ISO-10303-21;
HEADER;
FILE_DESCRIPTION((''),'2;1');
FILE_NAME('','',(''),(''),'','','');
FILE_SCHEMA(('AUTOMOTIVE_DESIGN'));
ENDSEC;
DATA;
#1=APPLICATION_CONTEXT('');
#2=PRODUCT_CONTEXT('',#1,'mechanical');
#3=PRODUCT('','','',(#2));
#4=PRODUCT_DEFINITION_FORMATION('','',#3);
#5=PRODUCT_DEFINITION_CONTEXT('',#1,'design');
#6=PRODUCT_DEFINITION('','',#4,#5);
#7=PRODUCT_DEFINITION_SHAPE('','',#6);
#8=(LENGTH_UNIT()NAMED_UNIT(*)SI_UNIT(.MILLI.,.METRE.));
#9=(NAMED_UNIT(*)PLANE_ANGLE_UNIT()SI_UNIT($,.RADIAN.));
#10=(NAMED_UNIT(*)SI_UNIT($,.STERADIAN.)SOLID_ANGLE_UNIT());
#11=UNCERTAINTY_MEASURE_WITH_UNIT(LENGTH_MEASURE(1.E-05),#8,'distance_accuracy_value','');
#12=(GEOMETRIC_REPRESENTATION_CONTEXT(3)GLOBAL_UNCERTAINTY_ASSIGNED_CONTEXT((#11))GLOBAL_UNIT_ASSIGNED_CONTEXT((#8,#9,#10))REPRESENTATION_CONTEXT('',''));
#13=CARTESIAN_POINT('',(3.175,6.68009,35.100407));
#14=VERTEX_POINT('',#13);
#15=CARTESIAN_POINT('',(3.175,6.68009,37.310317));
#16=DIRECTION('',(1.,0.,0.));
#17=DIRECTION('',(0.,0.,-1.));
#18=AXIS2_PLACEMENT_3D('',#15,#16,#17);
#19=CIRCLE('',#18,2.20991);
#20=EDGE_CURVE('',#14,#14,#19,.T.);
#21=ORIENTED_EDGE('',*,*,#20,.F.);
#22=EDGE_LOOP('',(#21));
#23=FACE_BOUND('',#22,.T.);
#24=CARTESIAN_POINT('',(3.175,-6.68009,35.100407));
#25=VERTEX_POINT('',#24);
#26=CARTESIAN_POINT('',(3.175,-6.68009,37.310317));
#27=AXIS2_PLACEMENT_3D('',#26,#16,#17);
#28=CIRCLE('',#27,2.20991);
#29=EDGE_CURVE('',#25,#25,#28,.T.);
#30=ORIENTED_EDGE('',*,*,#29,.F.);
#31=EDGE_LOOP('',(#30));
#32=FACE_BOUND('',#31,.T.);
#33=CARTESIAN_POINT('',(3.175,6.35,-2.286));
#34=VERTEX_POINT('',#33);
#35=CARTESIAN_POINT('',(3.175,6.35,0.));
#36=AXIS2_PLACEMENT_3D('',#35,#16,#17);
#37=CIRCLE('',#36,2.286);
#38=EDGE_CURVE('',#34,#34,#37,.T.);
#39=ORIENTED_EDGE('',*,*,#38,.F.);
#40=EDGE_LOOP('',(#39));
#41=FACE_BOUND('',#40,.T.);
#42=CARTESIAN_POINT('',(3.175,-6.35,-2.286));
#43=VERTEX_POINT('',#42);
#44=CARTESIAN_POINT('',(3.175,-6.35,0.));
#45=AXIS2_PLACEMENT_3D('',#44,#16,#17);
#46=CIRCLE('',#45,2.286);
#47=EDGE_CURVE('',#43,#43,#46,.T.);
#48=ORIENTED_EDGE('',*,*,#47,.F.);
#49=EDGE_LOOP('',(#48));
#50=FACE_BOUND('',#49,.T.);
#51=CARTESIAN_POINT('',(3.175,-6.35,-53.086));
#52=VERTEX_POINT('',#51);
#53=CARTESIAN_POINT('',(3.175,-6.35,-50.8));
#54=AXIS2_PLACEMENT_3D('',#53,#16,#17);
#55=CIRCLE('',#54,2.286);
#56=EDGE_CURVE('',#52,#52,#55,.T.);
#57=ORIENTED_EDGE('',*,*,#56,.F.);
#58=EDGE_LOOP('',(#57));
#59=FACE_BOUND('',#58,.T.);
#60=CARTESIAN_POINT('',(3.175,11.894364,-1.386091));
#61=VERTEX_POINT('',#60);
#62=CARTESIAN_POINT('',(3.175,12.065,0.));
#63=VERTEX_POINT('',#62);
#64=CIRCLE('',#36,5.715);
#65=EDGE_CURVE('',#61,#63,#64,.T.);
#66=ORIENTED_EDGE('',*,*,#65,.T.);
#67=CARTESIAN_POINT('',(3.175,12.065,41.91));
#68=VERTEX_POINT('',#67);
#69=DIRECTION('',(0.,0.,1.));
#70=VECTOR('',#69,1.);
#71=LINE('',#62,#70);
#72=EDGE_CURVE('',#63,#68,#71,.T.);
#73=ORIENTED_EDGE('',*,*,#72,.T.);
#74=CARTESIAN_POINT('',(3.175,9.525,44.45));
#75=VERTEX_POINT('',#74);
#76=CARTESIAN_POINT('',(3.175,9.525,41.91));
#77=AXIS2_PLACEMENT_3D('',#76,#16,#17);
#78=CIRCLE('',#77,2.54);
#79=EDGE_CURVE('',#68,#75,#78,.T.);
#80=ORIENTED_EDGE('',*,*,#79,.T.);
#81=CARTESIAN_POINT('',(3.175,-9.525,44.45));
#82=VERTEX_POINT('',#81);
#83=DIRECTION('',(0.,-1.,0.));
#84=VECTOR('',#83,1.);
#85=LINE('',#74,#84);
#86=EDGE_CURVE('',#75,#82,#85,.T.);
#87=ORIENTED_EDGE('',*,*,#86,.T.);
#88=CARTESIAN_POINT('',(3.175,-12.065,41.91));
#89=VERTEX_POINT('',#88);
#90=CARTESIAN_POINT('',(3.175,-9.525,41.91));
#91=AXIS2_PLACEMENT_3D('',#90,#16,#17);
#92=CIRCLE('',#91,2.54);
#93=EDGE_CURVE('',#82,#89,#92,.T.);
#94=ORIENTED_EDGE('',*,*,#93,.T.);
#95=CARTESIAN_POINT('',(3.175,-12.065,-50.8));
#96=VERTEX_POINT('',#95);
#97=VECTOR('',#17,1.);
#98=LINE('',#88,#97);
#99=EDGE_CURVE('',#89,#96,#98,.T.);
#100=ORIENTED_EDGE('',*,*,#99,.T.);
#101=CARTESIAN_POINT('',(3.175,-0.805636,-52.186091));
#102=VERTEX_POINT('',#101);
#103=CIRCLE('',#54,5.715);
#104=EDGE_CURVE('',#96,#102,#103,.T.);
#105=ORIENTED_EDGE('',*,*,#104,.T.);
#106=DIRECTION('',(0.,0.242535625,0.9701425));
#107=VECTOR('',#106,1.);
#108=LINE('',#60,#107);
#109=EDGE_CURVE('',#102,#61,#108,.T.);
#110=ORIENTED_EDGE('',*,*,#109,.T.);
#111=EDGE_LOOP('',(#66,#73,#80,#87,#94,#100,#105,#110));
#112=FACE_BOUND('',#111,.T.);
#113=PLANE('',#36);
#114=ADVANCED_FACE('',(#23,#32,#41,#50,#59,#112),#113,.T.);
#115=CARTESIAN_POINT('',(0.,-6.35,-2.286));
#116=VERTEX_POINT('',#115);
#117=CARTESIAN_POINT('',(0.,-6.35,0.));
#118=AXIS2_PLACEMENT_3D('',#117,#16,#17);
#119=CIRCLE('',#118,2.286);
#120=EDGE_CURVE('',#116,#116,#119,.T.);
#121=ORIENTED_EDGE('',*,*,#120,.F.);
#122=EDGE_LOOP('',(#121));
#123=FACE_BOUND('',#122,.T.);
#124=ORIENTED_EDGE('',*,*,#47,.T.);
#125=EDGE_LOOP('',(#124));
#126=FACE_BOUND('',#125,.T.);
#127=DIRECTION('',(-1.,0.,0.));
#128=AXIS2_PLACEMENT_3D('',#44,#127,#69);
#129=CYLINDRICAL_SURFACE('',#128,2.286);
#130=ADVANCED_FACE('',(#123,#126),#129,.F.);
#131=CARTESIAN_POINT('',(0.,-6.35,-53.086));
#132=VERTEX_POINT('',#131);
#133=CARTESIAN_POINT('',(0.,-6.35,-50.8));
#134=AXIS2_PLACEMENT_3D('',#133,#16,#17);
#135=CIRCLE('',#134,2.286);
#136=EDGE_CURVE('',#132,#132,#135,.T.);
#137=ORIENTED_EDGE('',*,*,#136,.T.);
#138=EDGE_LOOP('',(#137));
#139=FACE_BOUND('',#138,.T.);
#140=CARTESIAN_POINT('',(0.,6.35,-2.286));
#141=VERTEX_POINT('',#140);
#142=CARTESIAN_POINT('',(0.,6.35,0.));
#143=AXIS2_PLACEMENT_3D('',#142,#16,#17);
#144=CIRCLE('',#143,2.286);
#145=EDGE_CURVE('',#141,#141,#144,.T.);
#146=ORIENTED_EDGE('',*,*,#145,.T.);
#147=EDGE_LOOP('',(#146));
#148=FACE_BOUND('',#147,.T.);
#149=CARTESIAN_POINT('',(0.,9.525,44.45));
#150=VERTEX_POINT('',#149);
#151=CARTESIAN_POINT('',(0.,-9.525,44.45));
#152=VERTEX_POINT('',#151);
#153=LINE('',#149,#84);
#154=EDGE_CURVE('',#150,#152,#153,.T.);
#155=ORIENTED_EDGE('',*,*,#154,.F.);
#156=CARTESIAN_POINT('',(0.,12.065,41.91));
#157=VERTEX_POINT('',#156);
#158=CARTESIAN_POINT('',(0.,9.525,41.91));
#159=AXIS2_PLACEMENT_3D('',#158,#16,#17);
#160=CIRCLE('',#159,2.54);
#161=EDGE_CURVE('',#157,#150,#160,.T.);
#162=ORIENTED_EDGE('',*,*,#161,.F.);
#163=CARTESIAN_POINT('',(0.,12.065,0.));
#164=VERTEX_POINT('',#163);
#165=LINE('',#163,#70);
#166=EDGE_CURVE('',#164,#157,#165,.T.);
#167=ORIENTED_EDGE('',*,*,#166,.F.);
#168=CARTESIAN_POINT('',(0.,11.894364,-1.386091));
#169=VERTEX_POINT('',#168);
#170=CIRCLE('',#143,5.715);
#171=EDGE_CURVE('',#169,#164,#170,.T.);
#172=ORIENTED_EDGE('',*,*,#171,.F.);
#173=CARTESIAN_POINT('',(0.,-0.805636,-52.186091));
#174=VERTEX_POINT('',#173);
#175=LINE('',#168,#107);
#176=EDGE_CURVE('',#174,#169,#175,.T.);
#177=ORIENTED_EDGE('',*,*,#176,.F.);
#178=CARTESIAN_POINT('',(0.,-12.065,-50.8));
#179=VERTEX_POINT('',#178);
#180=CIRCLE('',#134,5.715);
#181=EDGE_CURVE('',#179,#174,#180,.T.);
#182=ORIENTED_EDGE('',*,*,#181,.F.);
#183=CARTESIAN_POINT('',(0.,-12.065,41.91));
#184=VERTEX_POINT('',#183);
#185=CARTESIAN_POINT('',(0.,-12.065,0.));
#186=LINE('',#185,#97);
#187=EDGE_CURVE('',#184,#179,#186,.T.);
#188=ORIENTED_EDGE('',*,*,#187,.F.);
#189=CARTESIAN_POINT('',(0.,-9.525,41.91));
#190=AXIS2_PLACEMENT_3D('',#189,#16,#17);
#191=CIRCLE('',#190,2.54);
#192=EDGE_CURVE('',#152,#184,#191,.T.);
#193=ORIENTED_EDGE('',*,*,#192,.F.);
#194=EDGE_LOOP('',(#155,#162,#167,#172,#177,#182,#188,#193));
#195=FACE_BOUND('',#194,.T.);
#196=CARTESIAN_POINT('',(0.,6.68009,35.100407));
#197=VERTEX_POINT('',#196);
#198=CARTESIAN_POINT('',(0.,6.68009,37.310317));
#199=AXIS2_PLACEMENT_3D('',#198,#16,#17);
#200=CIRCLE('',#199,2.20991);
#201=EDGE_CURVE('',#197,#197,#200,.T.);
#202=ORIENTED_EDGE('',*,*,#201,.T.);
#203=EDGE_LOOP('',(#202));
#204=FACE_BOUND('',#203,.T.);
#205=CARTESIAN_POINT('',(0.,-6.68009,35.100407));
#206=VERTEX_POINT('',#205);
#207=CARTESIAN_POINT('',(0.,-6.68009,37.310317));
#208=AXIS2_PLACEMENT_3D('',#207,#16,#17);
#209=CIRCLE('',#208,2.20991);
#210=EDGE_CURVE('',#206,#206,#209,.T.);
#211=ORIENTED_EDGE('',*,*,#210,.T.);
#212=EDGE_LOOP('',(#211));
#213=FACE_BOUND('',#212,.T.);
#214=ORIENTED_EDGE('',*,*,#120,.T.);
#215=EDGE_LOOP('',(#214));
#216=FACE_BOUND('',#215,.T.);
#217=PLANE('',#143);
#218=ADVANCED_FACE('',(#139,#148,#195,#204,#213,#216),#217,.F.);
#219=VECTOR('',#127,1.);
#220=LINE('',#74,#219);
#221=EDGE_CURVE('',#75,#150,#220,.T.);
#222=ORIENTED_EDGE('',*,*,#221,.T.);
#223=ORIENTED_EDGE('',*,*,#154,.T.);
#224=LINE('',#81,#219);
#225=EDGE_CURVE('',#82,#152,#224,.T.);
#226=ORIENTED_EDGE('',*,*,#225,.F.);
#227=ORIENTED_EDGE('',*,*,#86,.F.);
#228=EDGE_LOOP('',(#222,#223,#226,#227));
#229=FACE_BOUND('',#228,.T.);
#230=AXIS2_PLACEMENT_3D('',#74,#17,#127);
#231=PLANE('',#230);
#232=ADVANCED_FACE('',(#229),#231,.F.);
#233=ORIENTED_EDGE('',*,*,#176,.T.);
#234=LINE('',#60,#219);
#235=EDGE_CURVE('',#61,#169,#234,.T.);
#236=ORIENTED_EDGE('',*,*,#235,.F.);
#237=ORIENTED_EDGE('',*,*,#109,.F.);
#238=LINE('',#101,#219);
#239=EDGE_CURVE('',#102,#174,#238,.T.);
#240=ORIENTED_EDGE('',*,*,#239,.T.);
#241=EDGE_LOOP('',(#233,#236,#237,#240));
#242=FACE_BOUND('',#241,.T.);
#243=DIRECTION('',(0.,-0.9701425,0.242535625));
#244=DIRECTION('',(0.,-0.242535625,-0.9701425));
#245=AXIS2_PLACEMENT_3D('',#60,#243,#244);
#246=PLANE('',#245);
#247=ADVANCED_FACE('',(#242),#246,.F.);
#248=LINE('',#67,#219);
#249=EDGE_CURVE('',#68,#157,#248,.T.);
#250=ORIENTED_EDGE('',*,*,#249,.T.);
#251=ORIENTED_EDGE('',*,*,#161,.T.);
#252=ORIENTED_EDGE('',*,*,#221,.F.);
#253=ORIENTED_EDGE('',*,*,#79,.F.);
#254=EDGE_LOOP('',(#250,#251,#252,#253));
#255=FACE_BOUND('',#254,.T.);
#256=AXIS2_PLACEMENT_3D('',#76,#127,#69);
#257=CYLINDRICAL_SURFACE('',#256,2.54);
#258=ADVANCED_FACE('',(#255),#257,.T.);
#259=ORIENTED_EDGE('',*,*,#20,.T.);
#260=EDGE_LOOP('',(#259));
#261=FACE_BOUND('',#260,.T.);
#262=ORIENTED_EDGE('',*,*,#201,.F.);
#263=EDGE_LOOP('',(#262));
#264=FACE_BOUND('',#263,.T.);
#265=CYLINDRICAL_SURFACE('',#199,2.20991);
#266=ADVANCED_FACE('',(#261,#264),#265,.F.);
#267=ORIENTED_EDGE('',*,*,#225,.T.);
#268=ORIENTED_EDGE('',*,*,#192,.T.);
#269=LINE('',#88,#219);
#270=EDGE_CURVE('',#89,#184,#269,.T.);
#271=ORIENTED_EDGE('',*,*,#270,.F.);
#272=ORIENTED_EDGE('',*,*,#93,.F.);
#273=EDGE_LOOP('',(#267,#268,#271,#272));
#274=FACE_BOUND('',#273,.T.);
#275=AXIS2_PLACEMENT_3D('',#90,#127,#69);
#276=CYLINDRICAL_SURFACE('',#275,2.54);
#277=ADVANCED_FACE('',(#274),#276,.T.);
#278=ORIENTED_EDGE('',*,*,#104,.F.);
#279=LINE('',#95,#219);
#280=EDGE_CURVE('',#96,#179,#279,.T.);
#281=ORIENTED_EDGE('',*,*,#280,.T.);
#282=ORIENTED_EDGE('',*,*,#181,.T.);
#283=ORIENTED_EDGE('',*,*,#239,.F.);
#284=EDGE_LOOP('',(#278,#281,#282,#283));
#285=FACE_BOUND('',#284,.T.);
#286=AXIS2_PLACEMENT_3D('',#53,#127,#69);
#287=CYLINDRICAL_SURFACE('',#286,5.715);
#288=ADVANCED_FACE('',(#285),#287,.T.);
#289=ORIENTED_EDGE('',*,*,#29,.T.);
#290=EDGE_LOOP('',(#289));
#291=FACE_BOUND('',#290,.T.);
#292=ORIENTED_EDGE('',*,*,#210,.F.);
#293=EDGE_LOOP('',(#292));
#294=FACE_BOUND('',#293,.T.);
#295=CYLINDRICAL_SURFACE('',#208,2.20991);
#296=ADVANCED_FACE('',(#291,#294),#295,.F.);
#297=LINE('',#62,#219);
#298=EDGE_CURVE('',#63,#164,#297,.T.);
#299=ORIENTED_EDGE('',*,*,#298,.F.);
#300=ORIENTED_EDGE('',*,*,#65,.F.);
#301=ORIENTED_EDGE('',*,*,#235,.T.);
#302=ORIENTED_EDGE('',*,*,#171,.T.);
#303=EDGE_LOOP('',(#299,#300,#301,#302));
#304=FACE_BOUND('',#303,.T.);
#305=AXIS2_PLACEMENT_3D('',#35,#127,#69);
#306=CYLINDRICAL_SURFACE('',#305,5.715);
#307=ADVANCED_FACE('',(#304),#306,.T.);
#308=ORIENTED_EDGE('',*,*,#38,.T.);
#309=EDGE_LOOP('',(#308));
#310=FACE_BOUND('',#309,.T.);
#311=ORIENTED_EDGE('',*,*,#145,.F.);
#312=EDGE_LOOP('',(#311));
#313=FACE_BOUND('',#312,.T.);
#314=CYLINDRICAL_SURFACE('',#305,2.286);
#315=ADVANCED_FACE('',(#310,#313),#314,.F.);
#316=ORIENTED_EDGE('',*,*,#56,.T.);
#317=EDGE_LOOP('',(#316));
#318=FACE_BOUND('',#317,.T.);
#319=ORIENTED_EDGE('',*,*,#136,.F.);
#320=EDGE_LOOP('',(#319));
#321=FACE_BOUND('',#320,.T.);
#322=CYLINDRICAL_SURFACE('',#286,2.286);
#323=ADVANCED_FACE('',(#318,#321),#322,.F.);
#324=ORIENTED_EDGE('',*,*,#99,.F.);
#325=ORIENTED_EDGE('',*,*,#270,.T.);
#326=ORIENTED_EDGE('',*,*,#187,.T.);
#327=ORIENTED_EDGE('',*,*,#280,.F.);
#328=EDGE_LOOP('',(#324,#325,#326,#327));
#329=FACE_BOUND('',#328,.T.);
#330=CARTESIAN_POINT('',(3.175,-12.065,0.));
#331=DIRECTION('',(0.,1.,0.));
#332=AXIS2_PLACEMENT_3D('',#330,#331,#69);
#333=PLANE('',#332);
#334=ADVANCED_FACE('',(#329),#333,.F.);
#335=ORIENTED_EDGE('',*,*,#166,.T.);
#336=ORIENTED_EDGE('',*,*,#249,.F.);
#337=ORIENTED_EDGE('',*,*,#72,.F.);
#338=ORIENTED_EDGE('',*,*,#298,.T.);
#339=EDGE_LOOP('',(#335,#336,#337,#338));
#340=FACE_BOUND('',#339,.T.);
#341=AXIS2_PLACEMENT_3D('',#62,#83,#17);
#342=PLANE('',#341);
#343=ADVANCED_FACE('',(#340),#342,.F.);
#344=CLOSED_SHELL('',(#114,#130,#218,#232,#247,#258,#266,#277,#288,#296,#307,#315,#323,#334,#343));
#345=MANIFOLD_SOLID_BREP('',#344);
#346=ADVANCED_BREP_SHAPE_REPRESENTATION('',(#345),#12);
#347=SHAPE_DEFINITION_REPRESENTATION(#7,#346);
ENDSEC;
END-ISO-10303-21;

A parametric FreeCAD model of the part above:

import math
import FreeCAD as App
import Part
import Sketcher
Q = App.Units.Quantity

doc = App.newDocument("Part")
body = doc.addObject("PartDesign::Body", "Body")

# Sketch on YZ plane
sketch1 = doc.addObject("Sketcher::SketchObject", "Sketch")
body.addObject(sketch1)
sketch1.AttachmentSupport = (doc.YZ_Plane, [""])
sketch1.MapMode = "FlatFace"
sketch1.addGeometry(Part.LineSegment(App.Vector(-0.8, -52.2, 0), App.Vector(11.9, -1.4, 0)), False)
sketch1.addGeometry(Part.ArcOfCircle(Part.Circle(App.Vector(6.3, 0, 0), App.Vector(0, 0, 1), 5.7), math.radians(-14.04), math.radians(0)), False)
sketch1.addGeometry(Part.LineSegment(App.Vector(12.1, 0, 0), App.Vector(12.1, 41.9, 0)), False)
sketch1.addGeometry(Part.ArcOfCircle(Part.Circle(App.Vector(9.5, 41.9, 0), App.Vector(0, 0, 1), 2.5), math.radians(0), math.radians(90)), False)
sketch1.addGeometry(Part.LineSegment(App.Vector(9.5, 44.5, 0), App.Vector(-9.5, 44.5, 0)), False)
sketch1.addGeometry(Part.ArcOfCircle(Part.Circle(App.Vector(-9.5, 41.9, 0), App.Vector(0, 0, 1), 2.5), math.radians(90), math.radians(180)), False)
sketch1.addGeometry(Part.LineSegment(App.Vector(-12.1, 41.9, 0), App.Vector(-12.1, -50.8, 0)), False)
sketch1.addGeometry(Part.ArcOfCircle(Part.Circle(App.Vector(-6.3, -50.8, 0), App.Vector(0, 0, 1), 5.7), math.radians(180), math.radians(346)), False)
sketch1.addGeometry(Part.Circle(App.Vector(-6.3, -50.8, 0), App.Vector(0, 0, 1), 2.3), False)
sketch1.addGeometry(Part.Circle(App.Vector(-6.3, 0, 0), App.Vector(0, 0, 1), 2.3), False)
sketch1.addGeometry(Part.Circle(App.Vector(6.3, 0, 0), App.Vector(0, 0, 1), 2.3), False)
sketch1.addConstraint(Sketcher.Constraint("Tangent", 0, 2, 1, 1))
sketch1.addConstraint(Sketcher.Constraint("Tangent", 1, 2, 2, 1))
sketch1.addConstraint(Sketcher.Constraint("Tangent", 2, 2, 3, 1))
sketch1.addConstraint(Sketcher.Constraint("Tangent", 3, 2, 4, 1))
sketch1.addConstraint(Sketcher.Constraint("Tangent", 4, 2, 5, 1))
sketch1.addConstraint(Sketcher.Constraint("Tangent", 5, 2, 6, 1))
sketch1.addConstraint(Sketcher.Constraint("Tangent", 6, 2, 7, 1))
sketch1.addConstraint(Sketcher.Constraint("Tangent", 7, 2, 0, 1))
sketch1.addConstraint(Sketcher.Constraint("Vertical", 2))
sketch1.addConstraint(Sketcher.Constraint("Horizontal", 4))
sketch1.addConstraint(Sketcher.Constraint("Vertical", 6))
sketch1.addConstraint(Sketcher.Constraint("Coincident", 8, 3, 7, 3))
sketch1.addConstraint(Sketcher.Constraint("Coincident", 10, 3, 1, 3))
sketch1.addConstraint(Sketcher.Constraint("Equal", 3, 5))
sketch1.addConstraint(Sketcher.Constraint("Equal", 1, 7))
sketch1.addConstraint(Sketcher.Constraint("Equal", 8, 9))
sketch1.addConstraint(Sketcher.Constraint("Equal", 9, 10))
sketch1.addConstraint(Sketcher.Constraint("Symmetric", 1, 3, 9, 3, -1, 1))
sketch1.addConstraint(Sketcher.Constraint("PointOnObject", 1, 3, -1))
sketch1.addConstraint(Sketcher.Constraint("Vertical", 8, 3, 9, 3))
sketch1.addConstraint(Sketcher.Constraint("Radius", 3, Q("0.1 in")))
sketch1.addConstraint(Sketcher.Constraint("Diameter", 8, Q("0.18 in")))
sketch1.addConstraint(Sketcher.Constraint("DistanceY", 7, 3, -1, 1, Q("2 in")))
sketch1.addConstraint(Sketcher.Constraint("Radius", 1, Q("0.225 in")))
sketch1.addConstraint(Sketcher.Constraint("DistanceX", 4, 2, 4, 1, Q("0.75 in")))
sketch1.addConstraint(Sketcher.Constraint("DistanceY", 2, 1, 2, 2, Q("1.65 in")))
pad1 = doc.addObject("PartDesign::Pad", "Pad")
body.addObject(pad1)
pad1.Profile = sketch1
pad1.Length = Q("0.125 in")

# Sketch on YZ plane
sketch2 = doc.addObject("Sketcher::SketchObject", "Sketch001")
body.addObject(sketch2)
sketch2.AttachmentSupport = (doc.YZ_Plane, [""])
sketch2.MapMode = "FlatFace"
sketch2.AttachmentOffset = App.Placement(App.Vector(0, 0, 0.125 * 25.4), App.Rotation())
sketch2.addGeometry(Part.Circle(App.Vector(6.7, 37.3, 0), App.Vector(0, 0, 1), 2.2), False)
sketch2.addGeometry(Part.Circle(App.Vector(-6.7, 37.3, 0), App.Vector(0, 0, 1), 2.2), False)
sketch2.addConstraint(Sketcher.Constraint("Equal", 0, 1))
sketch2.addConstraint(Sketcher.Constraint("Symmetric", 0, 3, 1, 3, -2))
sketch2.addConstraint(Sketcher.Constraint("Diameter", 0, 4.41982))
sketch2.addConstraint(Sketcher.Constraint("DistanceX", -1, 1, 0, 3, 6.68009))
sketch2.addConstraint(Sketcher.Constraint("DistanceY", -1, 1, 0, 3, 37.310317))
pocket1 = doc.addObject("PartDesign::Pocket", "Pocket")
body.addObject(pocket1)
pocket1.Profile = sketch2
pocket1.Type = "ThroughAll"

doc.recompute()
